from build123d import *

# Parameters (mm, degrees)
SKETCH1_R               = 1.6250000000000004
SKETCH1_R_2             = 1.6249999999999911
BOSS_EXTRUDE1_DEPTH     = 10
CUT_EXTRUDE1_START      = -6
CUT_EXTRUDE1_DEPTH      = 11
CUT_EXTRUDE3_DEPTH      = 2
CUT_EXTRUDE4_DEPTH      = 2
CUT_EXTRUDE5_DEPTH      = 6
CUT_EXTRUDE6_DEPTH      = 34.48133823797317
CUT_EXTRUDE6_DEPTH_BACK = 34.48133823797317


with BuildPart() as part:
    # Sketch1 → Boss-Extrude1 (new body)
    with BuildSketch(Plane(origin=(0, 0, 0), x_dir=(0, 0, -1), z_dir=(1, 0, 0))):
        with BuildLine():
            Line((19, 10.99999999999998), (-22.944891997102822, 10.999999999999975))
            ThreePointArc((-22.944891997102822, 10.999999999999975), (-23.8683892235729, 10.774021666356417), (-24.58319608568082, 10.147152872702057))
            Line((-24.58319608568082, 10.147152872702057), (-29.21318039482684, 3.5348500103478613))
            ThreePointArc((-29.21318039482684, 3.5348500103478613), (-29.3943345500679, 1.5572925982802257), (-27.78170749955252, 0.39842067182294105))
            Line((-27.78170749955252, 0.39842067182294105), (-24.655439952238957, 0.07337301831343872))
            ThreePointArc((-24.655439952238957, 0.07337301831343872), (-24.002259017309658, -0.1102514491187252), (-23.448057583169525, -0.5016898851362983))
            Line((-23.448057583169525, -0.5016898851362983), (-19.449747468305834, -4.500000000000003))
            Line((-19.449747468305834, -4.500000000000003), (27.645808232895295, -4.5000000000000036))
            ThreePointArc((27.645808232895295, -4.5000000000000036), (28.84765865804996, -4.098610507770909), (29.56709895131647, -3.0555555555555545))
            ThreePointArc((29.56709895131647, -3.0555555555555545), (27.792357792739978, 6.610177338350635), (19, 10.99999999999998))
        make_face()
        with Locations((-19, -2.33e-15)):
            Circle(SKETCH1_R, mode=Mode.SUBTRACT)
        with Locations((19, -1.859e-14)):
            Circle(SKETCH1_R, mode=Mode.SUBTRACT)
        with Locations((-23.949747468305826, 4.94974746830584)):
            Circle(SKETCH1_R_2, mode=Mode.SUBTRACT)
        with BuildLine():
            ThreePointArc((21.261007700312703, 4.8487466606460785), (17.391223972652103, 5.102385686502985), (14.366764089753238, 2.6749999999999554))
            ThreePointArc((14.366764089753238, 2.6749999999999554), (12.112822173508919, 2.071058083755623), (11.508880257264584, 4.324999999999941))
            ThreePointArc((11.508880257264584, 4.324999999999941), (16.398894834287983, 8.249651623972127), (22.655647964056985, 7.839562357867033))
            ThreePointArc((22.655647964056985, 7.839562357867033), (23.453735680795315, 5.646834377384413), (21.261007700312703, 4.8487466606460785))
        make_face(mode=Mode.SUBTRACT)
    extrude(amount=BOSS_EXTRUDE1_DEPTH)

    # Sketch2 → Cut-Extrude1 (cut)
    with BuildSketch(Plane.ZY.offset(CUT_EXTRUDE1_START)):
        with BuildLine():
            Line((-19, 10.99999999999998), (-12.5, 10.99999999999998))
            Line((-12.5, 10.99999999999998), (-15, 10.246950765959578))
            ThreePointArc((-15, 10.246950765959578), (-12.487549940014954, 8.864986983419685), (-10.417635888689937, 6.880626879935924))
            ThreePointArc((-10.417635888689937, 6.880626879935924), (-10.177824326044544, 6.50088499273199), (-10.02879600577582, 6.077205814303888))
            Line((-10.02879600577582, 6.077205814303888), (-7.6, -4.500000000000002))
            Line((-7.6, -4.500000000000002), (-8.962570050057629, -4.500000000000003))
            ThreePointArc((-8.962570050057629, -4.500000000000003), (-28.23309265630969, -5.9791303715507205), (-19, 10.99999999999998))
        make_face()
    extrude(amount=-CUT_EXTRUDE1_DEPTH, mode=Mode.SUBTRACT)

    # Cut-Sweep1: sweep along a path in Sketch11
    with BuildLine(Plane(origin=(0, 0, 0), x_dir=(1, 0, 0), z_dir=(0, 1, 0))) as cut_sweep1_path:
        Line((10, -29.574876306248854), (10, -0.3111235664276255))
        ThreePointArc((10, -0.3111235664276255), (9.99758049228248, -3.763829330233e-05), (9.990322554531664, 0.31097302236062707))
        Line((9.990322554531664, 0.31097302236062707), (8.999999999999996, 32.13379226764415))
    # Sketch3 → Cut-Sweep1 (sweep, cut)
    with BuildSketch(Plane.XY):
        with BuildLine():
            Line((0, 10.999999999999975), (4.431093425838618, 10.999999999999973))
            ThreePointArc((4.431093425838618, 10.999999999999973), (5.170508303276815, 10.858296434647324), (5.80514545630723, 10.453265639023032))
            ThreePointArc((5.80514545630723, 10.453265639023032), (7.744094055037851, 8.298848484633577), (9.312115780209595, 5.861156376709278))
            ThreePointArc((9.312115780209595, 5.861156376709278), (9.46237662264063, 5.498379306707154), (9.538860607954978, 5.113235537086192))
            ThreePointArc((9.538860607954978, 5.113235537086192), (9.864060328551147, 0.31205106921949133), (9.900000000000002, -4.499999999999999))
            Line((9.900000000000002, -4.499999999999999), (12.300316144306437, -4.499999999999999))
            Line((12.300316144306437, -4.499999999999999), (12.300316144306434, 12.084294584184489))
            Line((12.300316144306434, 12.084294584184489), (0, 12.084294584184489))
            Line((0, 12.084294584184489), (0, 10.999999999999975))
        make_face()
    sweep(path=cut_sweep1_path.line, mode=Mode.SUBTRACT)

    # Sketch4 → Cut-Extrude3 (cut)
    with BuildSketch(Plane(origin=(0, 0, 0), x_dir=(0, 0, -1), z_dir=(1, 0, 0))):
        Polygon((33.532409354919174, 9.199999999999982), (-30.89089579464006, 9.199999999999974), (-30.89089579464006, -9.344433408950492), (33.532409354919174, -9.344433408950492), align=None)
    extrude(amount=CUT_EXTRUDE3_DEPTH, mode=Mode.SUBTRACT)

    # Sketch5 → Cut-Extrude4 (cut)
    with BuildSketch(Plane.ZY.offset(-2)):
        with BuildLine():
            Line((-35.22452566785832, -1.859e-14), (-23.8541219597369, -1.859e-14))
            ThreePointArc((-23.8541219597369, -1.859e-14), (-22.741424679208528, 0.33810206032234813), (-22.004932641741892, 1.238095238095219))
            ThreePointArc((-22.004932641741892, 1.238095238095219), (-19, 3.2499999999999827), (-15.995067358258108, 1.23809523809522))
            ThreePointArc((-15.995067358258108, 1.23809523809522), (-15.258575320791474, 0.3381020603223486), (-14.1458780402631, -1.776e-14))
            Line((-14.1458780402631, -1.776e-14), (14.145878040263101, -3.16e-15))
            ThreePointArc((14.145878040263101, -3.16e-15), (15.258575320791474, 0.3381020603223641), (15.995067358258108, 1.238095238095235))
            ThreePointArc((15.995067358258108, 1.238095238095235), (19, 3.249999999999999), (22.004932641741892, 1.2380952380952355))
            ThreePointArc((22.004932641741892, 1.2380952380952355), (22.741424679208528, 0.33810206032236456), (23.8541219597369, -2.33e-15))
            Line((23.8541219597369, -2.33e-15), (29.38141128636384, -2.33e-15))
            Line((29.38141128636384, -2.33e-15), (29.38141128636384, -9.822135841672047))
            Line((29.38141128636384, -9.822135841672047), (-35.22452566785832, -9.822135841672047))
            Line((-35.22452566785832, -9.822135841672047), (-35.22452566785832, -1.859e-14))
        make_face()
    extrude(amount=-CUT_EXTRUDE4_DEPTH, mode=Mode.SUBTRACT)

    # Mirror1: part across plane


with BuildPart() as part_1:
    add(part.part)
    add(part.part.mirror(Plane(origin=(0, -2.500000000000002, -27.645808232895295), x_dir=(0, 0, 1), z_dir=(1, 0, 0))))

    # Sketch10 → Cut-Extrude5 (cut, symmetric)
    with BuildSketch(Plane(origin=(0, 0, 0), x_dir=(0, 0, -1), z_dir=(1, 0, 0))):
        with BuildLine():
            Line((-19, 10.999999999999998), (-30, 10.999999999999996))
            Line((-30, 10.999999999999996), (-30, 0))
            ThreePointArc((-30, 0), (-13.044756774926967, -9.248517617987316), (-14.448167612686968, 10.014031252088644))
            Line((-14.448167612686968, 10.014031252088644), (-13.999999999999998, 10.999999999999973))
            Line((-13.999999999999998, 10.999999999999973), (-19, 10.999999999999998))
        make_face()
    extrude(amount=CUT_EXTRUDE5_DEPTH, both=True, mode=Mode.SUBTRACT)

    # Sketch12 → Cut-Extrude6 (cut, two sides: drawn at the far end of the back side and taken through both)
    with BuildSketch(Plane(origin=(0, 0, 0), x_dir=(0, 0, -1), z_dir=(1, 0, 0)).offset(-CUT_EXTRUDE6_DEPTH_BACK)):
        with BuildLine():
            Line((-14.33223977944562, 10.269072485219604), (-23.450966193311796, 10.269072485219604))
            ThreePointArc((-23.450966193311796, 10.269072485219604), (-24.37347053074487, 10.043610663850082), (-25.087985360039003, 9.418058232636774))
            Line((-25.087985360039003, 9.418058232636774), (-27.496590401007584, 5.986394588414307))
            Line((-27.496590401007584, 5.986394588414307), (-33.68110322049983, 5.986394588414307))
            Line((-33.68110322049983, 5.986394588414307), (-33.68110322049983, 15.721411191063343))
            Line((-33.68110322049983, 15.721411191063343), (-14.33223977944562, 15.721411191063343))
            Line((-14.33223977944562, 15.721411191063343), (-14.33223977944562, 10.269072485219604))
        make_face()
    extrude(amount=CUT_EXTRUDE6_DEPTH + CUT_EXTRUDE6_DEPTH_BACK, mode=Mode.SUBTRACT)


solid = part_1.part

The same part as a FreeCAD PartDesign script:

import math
import FreeCAD as App
import Part
import Sketcher
from FreeCAD import Vector
Q = App.Units.Quantity

doc = App.newDocument("Part")
body = doc.addObject("PartDesign::Body", "Body")

# Sketch on YZ plane
sketch1 = body.newObject("Sketcher::SketchObject", "Sketch")
sketch1.AttachmentSupport = (doc.getObject("YZ_Plane"), [""])
sketch1.MapMode = "FlatFace"
sketch1.addGeometry([
    Part.LineSegment(Vector(11, -19, 0), Vector(11, 22.9, 0)),  # 0
    Part.ArcOfCircle(Part.Circle(Vector(9, 22.9, 0), Vector(0, 0, 1), 2), math.radians(0), math.radians(55)),  # 1
    Part.LineSegment(Vector(10.1, 24.6, 0), Vector(3.5, 29.2, 0)),  # 2
    Part.ArcOfCircle(Part.Circle(Vector(2.4, 27.6, 0), Vector(0, 0, 1), 2), math.radians(55), math.radians(174)),  # 3
    Part.LineSegment(Vector(0.4, 27.8, 0), Vector(0.1, 24.7, 0)),  # 4
    Part.ArcOfCircle(Part.Circle(Vector(-1.9, 24.9, 0), Vector(0, 0, 1), 2), math.radians(-45), math.radians(-6)),  # 5
    Part.LineSegment(Vector(-0.5, 23.4, 0), Vector(-4.5, 19.4, 0)),  # 6
    Part.LineSegment(Vector(-4.5, 19.4, 0), Vector(-4.5, -27.6, 0)),  # 7
    Part.ArcOfCircle(Part.Circle(Vector(-2.5, -27.6, 0), Vector(0, 0, 1), 2), math.radians(180), math.radians(254)),  # 8
    Part.ArcOfCircle(Part.Circle(Vector(0, -19, 0), Vector(0, 0, 1), 11), math.radians(-106), math.radians(0)),  # 9
    Part.Circle(Vector(0, 19, 0), Vector(0, 0, 1), 1.6),  # 10
    Part.Circle(Vector(0, -19, 0), Vector(0, 0, 1), 1.6),  # 11
    Part.Circle(Vector(4.9, 23.9, 0), Vector(0, 0, 1), 1.6),  # 12
    Part.ArcOfCircle(Part.Circle(Vector(6.3, -22, 0), Vector(0, 0, 1), 1.6), math.radians(155), math.radians(335)),  # 13
    Part.ArcOfCircle(Part.Circle(Vector(0, -19, 0), Vector(0, 0, 1), 5.3), math.radians(-25), math.radians(60)),  # 14
    Part.ArcOfCircle(Part.Circle(Vector(3.5, -12.9, 0), Vector(0, 0, 1), 1.6), math.radians(60), math.radians(240)),  # 15
    Part.ArcOfCircle(Part.Circle(Vector(0, -19, 0), Vector(0, 0, 1), 8.7), math.radians(-25), math.radians(60)),  # 16
], False)
sketch1.addConstraint([
    Sketcher.Constraint("Tangent", 0, 2, 1, 1),
    Sketcher.Constraint("Tangent", 1, 2, 2, 1),
    Sketcher.Constraint("Tangent", 2, 2, 3, 1),
    Sketcher.Constraint("Tangent", 3, 2, 4, 1),
    Sketcher.Constraint("Tangent", 4, 2, 5, 2),
    Sketcher.Constraint("Tangent", 5, 1, 6, 1),
    Sketcher.Constraint("Coincident", 6, 2, 7, 1),
    Sketcher.Constraint("Tangent", 7, 2, 8, 1),
    Sketcher.Constraint("Tangent", 8, 2, 9, 1),
    Sketcher.Constraint("Tangent", 9, 2, 0, 1),
    Sketcher.Constraint("Tangent", 13, 1, 14, 1),
    Sketcher.Constraint("Tangent", 14, 2, 15, 2),
    Sketcher.Constraint("Tangent", 15, 1, 16, 2),
    Sketcher.Constraint("Tangent", 16, 1, 13, 2),
    Sketcher.Constraint("Vertical", 0),
    Sketcher.Constraint("Vertical", 7),
    Sketcher.Constraint("Coincident", 11, 3, 9, 3),
    Sketcher.Constraint("Coincident", 14, 3, 9, 3),
    Sketcher.Constraint("Coincident", 16, 3, 9, 3),
    Sketcher.Constraint("Equal", 1, 3),
    Sketcher.Constraint("Equal", 3, 5),
    Sketcher.Constraint("Equal", 5, 8),
    Sketcher.Constraint("Equal", 10, 11),
    Sketcher.Constraint("Equal", 11, 12),
    Sketcher.Constraint("Symmetric", 9, 3, 10, 3, -1, 1),
    Sketcher.Constraint("PointOnObject", 9, 3, -2),
    Sketcher.Constraint("Radius", 1, 2.0),
    Sketcher.Constraint("Radius", 9, 11.0),
    Sketcher.Constraint("Diameter", 10, 3.25),
    Sketcher.Constraint("Angle", 2, Q("145 deg")),
    Sketcher.Constraint("Angle", 6, Q("-135 deg")),
    Sketcher.Constraint("Radius", 13, 1.65),
    Sketcher.Constraint("Radius", 14, 5.35),
    Sketcher.Constraint("DistanceY", 9, 3, -1, 1, 19.0),
    Sketcher.Constraint("DistanceX", 8, 3, 15, 3, 6.0),
    Sketcher.Constraint("DistanceX", 8, 3, -1, 1, 2.5),
    Sketcher.Constraint("DistanceY", 0, 1, 0, 2, 41.944892),
    Sketcher.Constraint("DistanceX", 5, 3, 3, 3, 4.303601),
    Sketcher.Constraint("Distance", 2, 8.072131),
    Sketcher.Constraint("Distance", 4, 3.14312),
    Sketcher.Constraint("DistanceX", 3, 3, 12, 3, 2.56205),
    Sketcher.Constraint("DistanceY", 12, 3, 3, 3, 3.625129),
    Sketcher.Constraint("DistanceY", 8, 3, 13, 3, 5.68748),
])
pad1 = body.newObject("PartDesign::Pad", "Pad")
pad1.Profile = sketch1
pad1.Length = 10

# Sketch on YZ plane
sketch2 = body.newObject("Sketcher::SketchObject", "Sketch001")
sketch2.AttachmentSupport = (doc.getObject("YZ_Plane"), [""])
sketch2.MapMode = "FlatFace"
sketch2.AttachmentOffset = App.Placement(Vector(0, 0, 6), App.Rotation())
sketch2.addGeometry([
    Part.LineSegment(Vector(11, -12.5, 0), Vector(11, -19, 0)),  # 0
    Part.ArcOfCircle(Part.Circle(Vector(0, -19, 0), Vector(0, 0, 1), 11), math.radians(114), math.radians(360)),  # 1
    Part.LineSegment(Vector(-4.5, -9, 0), Vector(-4.5, -7.6, 0)),  # 2
    Part.LineSegment(Vector(-4.5, -7.6, 0), Vector(6.1, -10, 0)),  # 3
    Part.ArcOfCircle(Part.Circle(Vector(5.6, -12, 0), Vector(0, 0, 1), 2), math.radians(51), math.radians(77)),  # 4
    Part.ArcOfCircle(Part.Circle(Vector(0, -19, 0), Vector(0, 0, 1), 11), math.radians(21), math.radians(51)),  # 5
    Part.LineSegment(Vector(10.2, -15, 0), Vector(11, -12.5, 0)),  # 6
], False)
sketch2.addConstraint([
    Sketcher.Constraint("Tangent", 0, 2, 1, 2),
    Sketcher.Constraint("Coincident", 1, 1, 2, 1),
    Sketcher.Constraint("Coincident", 2, 2, 3, 1),
    Sketcher.Constraint("Tangent", 3, 2, 4, 2),
    Sketcher.Constraint("Tangent", 4, 1, 5, 2),
    Sketcher.Constraint("Coincident", 5, 1, 6, 1),
    Sketcher.Constraint("Coincident", 6, 2, 0, 1),
    Sketcher.Constraint("Vertical", 0),
    Sketcher.Constraint("Vertical", 2),
    Sketcher.Constraint("Coincident", 5, 3, 1, 3),
    Sketcher.Constraint("Equal", 1, 5),
    Sketcher.Constraint("PointOnObject", 1, 3, -2),
    Sketcher.Constraint("Radius", 1, 11.0),
    Sketcher.Constraint("Radius", 4, 2.0),
    Sketcher.Constraint("DistanceY", 0, 2, 0, 1, 6.5),
    Sketcher.Constraint("DistanceY", 1, 3, -1, 1, 19.0),
    Sketcher.Constraint("DistanceY", 5, 1, -1, 1, 15.0),
    Sketcher.Constraint("DistanceX", 1, 1, -1, 1, 4.5),
    Sketcher.Constraint("DistanceY", 2, 2, -1, 1, 7.6),
    Sketcher.Constraint("Distance", 3, 10.85248),
])
pocket1 = body.newObject("PartDesign::Pocket", "Pocket")
pocket1.Profile = sketch2
pocket1.Length = 11
pocket1.Reversed = True

# Sketch on XY plane
sketch3 = body.newObject("Sketcher::SketchObject", "Sketch002")
sketch3.AttachmentSupport = (doc.getObject("XY_Plane"), [""])
sketch3.MapMode = "FlatFace"
sketch3.addGeometry([
    Part.LineSegment(Vector(0, 11, 0), Vector(4.4, 11, 0)),  # 0
    Part.ArcOfCircle(Part.Circle(Vector(4.4, 9, 0), Vector(0, 0, 1), 2), math.radians(47), math.radians(90)),  # 1
    Part.ArcOfCircle(Part.Circle(Vector(-6.6, -2.6, 0), Vector(0, 0, 1), 18), math.radians(28.13), math.radians(46.6)),  # 2
    Part.ArcOfCircle(Part.Circle(Vector(7.5, 4.9, 0), Vector(0, 0, 1), 2), math.radians(6), math.radians(28)),  # 3
    Part.ArcOfCircle(Part.Circle(Vector(-70.1, -2.7, 0), Vector(0, 0, 1), 80), math.radians(-1.3), math.radians(5.6)),  # 4
    Part.LineSegment(Vector(9.9, -4.5, 0), Vector(12.3, -4.5, 0)),  # 5
    Part.LineSegment(Vector(12.3, -4.5, 0), Vector(12.3, 12.1, 0)),  # 6
    Part.LineSegment(Vector(12.3, 12.1, 0), Vector(0, 12.1, 0)),  # 7
    Part.LineSegment(Vector(0, 12.1, 0), Vector(0, 11, 0)),  # 8
], False)
sketch3.addConstraint([
    Sketcher.Constraint("Tangent", 0, 2, 1, 2),
    Sketcher.Constraint("Tangent", 1, 1, 2, 2),
    Sketcher.Constraint("Tangent", 2, 1, 3, 2),
    Sketcher.Constraint("Tangent", 3, 1, 4, 2),
    Sketcher.Constraint("Coincident", 4, 1, 5, 1),
    Sketcher.Constraint("Coincident", 5, 2, 6, 1),
    Sketcher.Constraint("Coincident", 6, 2, 7, 1),
    Sketcher.Constraint("Coincident", 7, 2, 8, 1),
    Sketcher.Constraint("Coincident", 8, 2, 0, 1),
    Sketcher.Constraint("Horizontal", 0),
    Sketcher.Constraint("Horizontal", 5),
    Sketcher.Constraint("Vertical", 6),
    Sketcher.Constraint("Horizontal", 7),
    Sketcher.Constraint("Vertical", 8),
    Sketcher.Constraint("Equal", 1, 3),
    Sketcher.Constraint("PointOnObject", 7, 2, -2),
    Sketcher.Constraint("Radius", 1, 2.0),
    Sketcher.Constraint("Radius", 2, 18.0),
    Sketcher.Constraint("Radius", 4, 80.0),
    Sketcher.Constraint("DistanceY", -1, 1, 1, 3, 9.0),
    Sketcher.Constraint("DistanceX", -1, 1, 4, 1, 9.9),
    Sketcher.Constraint("DistanceY", 4, 1, -1, 1, 4.5),
    Sketcher.Constraint("DistanceX", -1, 1, 3, 3, 7.5484),
    Sketcher.Constraint("DistanceX", 2, 1, 5, 2, 2.9882),
    Sketcher.Constraint("DistanceX", 0, 1, 0, 2, 4.431093),
    Sketcher.Constraint("DistanceX", 5, 1, 5, 2, 2.400316),
    Sketcher.Constraint("DistanceY", 6, 1, 6, 2, 16.584295),
])

# Sketch on XZ plane
sketch4 = body.newObject("Sketcher::SketchObject", "Sketch003")
sketch4.AttachmentSupport = (doc.getObject("XZ_Plane"), [""])
sketch4.MapMode = "FlatFace"
sketch4.addGeometry([
    Part.LineSegment(Vector(10, 29.6, 0), Vector(10, 0.3, 0)),
    Part.ArcOfCircle(Part.Circle(Vector(-10, 0.3, 0), Vector(0, 0, 1), 20), math.radians(-1.78), math.radians(0)),
    Part.LineSegment(Vector(10, -0.3, 0), Vector(9, -32.1, 0)),
], False)
sketch4.addConstraint([
    Sketcher.Constraint("Tangent", 0, 2, 1, 2),
    Sketcher.Constraint("Tangent", 1, 1, 2, 1),
    Sketcher.Constraint("Vertical", 0),
    Sketcher.Constraint("Radius", 1, 20.0),
    Sketcher.Constraint("DistanceX", 1, 3, -1, 1, 10.0),
    Sketcher.Constraint("DistanceX", -1, 1, 2, 2, 9.0),
    Sketcher.Constraint("DistanceY", 0, 2, 0, 1, 29.263753),
    Sketcher.Constraint("DistanceY", 2, 2, 1, 1, 31.822819),
    Sketcher.Constraint("DistanceY", -1, 1, 1, 3, 0.311124),
])
doc.recompute()

subtractivepipe = body.newObject("PartDesign::SubtractivePipe", "SubtractivePipe")
subtractivepipe.Profile = sketch3
subtractivepipe.Spine = (sketch4, ["Edge1", "Edge2", "Edge3"])

# Sketch on YZ plane
sketch5 = body.newObject("Sketcher::SketchObject", "Sketch004")
sketch5.AttachmentSupport = (doc.getObject("YZ_Plane"), [""])
sketch5.MapMode = "FlatFace"
sketch5.addGeometry([
    Part.LineSegment(Vector(9, -34, 0), Vector(9, 31, 0)),
    Part.LineSegment(Vector(9, 31, 0), Vector(-9, 31, 0)),
    Part.LineSegment(Vector(-9, 31, 0), Vector(-9, -34, 0)),
    Part.LineSegment(Vector(-9, -34, 0), Vector(9, -34, 0)),
], False)
sketch5.addConstraint([
    Sketcher.Constraint("Coincident", 0, 2, 1, 1),
    Sketcher.Constraint("Coincident", 1, 2, 2, 1),
    Sketcher.Constraint("Coincident", 2, 2, 3, 1),
    Sketcher.Constraint("Coincident", 3, 2, 0, 1),
    Sketcher.Constraint("Vertical", 0),
    Sketcher.Constraint("Horizontal", 1),
    Sketcher.Constraint("Vertical", 2),
    Sketcher.Constraint("Horizontal", 3),
    Sketcher.Constraint("DistanceX", -1, 1, 0, 2, 9.2),
    Sketcher.Constraint("DistanceX", 1, 2, 1, 1, 18.544433),
    Sketcher.Constraint("DistanceY", 0, 1, 0, 2, 64.423305),
    Sketcher.Constraint("DistanceY", 2, 2, -1, 1, 33.532409),
])
pocket2 = body.newObject("PartDesign::Pocket", "Pocket001")
pocket2.Profile = sketch5
pocket2.Length = 2
pocket2.Reversed = True

# Sketch on YZ plane
sketch6 = body.newObject("Sketcher::SketchObject", "Sketch005")
sketch6.AttachmentSupport = (doc.getObject("YZ_Plane"), [""])
sketch6.MapMode = "FlatFace"
sketch6.AttachmentOffset = App.Placement(Vector(0, 0, 2), App.Rotation())
sketch6.addGeometry([
    Part.LineSegment(Vector(0, -23.9, 0), Vector(0, -35.2, 0)),  # 0
    Part.LineSegment(Vector(0, -35.2, 0), Vector(-9.8, -35.2, 0)),  # 1
    Part.LineSegment(Vector(-9.8, -35.2, 0), Vector(-9.8, 29.4, 0)),  # 2
    Part.LineSegment(Vector(-9.8, 29.4, 0), Vector(0, 29.4, 0)),  # 3
    Part.LineSegment(Vector(0, 29.4, 0), Vector(0, 23.9, 0)),  # 4
    Part.ArcOfCircle(Part.Circle(Vector(2, 23.9, 0), Vector(0, 0, 1), 2), math.radians(180), math.radians(248)),  # 5
    Part.ArcOfCircle(Part.Circle(Vector(0, 19, 0), Vector(0, 0, 1), 3.2), math.radians(-68), math.radians(68)),  # 6
    Part.ArcOfCircle(Part.Circle(Vector(2, 14.1, 0), Vector(0, 0, 1), 2), math.radians(112), math.radians(180)),  # 7
    Part.LineSegment(Vector(0, 14.1, 0), Vector(0, -14.1, 0)),  # 8
    Part.ArcOfCircle(Part.Circle(Vector(2, -14.1, 0), Vector(0, 0, 1), 2), math.radians(180), math.radians(248)),  # 9
    Part.ArcOfCircle(Part.Circle(Vector(0, -19, 0), Vector(0, 0, 1), 3.2), math.radians(-68), math.radians(68)),  # 10
    Part.ArcOfCircle(Part.Circle(Vector(2, -23.9, 0), Vector(0, 0, 1), 2), math.radians(112), math.radians(180)),  # 11
], False)
sketch6.addConstraint([
    Sketcher.Constraint("Coincident", 0, 2, 1, 1),
    Sketcher.Constraint("Coincident", 1, 2, 2, 1),
    Sketcher.Constraint("Coincident", 2, 2, 3, 1),
    Sketcher.Constraint("Coincident", 3, 2, 4, 1),
    Sketcher.Constraint("Tangent", 4, 2, 5, 1),
    Sketcher.Constraint("Tangent", 5, 2, 6, 2),
    Sketcher.Constraint("Tangent", 6, 1, 7, 1),
    Sketcher.Constraint("Tangent", 7, 2, 8, 1),
    Sketcher.Constraint("Tangent", 8, 2, 9, 1),
    Sketcher.Constraint("Tangent", 9, 2, 10, 2),
    Sketcher.Constraint("Tangent", 10, 1, 11, 1),
    Sketcher.Constraint("Tangent", 11, 2, 0, 1),
    Sketcher.Constraint("Vertical", 0),
    Sketcher.Constraint("Horizontal", 1),
    Sketcher.Constraint("Vertical", 2),
    Sketcher.Constraint("Horizontal", 3),
    Sketcher.Constraint("Vertical", 4),
    Sketcher.Constraint("Vertical", 8),
    Sketcher.Constraint("Equal", 5, 7),
    Sketcher.Constraint("Equal", 7, 9),
    Sketcher.Constraint("Equal", 6, 10),
    Sketcher.Constraint("Equal", 9, 11),
    Sketcher.Constraint("Symmetric", 6, 3, 10, 3, -1, 1),
    Sketcher.Constraint("Symmetric", 7, 2, 8, 2, -1, 1),
    Sketcher.Constraint("Symmetric", 4, 2, 11, 2, -1, 1),
    Sketcher.Constraint("Radius", 5, 2.0),
    Sketcher.Constraint("Radius", 6, 3.25),
    Sketcher.Constraint("DistanceY", -1, 1, 6, 3, 19.0),
    Sketcher.Constraint("DistanceY", 4, 2, 4, 1, 5.527289),
    Sketcher.Constraint("DistanceX", 1, 2, 1, 1, 9.822136),
    Sketcher.Constraint("DistanceY", 0, 2, 0, 1, 11.370404),
])
pocket3 = body.newObject("PartDesign::Pocket", "Pocket002")
pocket3.Profile = sketch6
pocket3.Length = 2
pocket3.Reversed = True
body2 = doc.addObject("PartDesign::Body", "Body001")
doc.recompute()

body2.BaseFeature = body
doc.recompute()

mirroring = doc.addObject("Part::Mirroring", "Mirroring")
mirroring.Source = body
mirroring.Base = Vector(0, -2.5, -27.645808)
mirroring.Normal = Vector(1, 0, 0)
body3 = doc.addObject("PartDesign::Body", "Body002")
body3.BaseFeature = mirroring
boolean = body2.newObject("PartDesign::Boolean", "Boolean")
boolean.Type = "Fuse"
boolean.addObjects([body3])
doc.recompute()

# Sketch on YZ plane
sketch7 = body2.newObject("Sketcher::SketchObject", "Sketch006")
sketch7.AttachmentSupport = (doc.getObject("YZ_Plane001"), [""])
sketch7.MapMode = "FlatFace"
sketch7.addGeometry([
    Part.LineSegment(Vector(11, 30, 0), Vector(0, 30, 0)),
    Part.ArcOfCircle(Part.Circle(Vector(0, 19, 0), Vector(0, 0, 1), 11), math.radians(90), math.radians(336)),
    Part.LineSegment(Vector(10, 14.4, 0), Vector(11, 14, 0)),
    Part.LineSegment(Vector(11, 14, 0), Vector(11, 30, 0)),
], False)
sketch7.addConstraint([
    Sketcher.Constraint("Tangent", 0, 2, 1, 1),
    Sketcher.Constraint("Coincident", 1, 2, 2, 1),
    Sketcher.Constraint("Coincident", 2, 2, 3, 1),
    Sketcher.Constraint("Coincident", 3, 2, 0, 1),
    Sketcher.Constraint("Horizontal", 0),
    Sketcher.Constraint("Vertical", 3),
    Sketcher.Constraint("PointOnObject", 1, 3, -2),
    Sketcher.Constraint("Radius", 1, 11.0),
    Sketcher.Constraint("DistanceX", 0, 2, 0, 1, 11.0),
    Sketcher.Constraint("DistanceY", 3, 1, 3, 2, 16.0),
    Sketcher.Constraint("DistanceY", -1, 1, 1, 3, 19.0),
    Sketcher.Constraint("DistanceX", -1, 1, 1, 2, 10.014031),
])
pocket4 = body2.newObject("PartDesign::Pocket", "Pocket003")
pocket4.Profile = sketch7
pocket4.Length = 12
pocket4.Midplane = True

# Sketch on YZ plane
sketch8 = body2.newObject("Sketcher::SketchObject", "Sketch007")
sketch8.AttachmentSupport = (doc.getObject("YZ_Plane001"), [""])
sketch8.MapMode = "FlatFace"
sketch8.addGeometry([
    Part.LineSegment(Vector(10.3, 23.5, 0), Vector(10.3, 14.3, 0)),  # 0
    Part.LineSegment(Vector(10.3, 14.3, 0), Vector(15.7, 14.3, 0)),  # 1
    Part.LineSegment(Vector(15.7, 14.3, 0), Vector(15.7, 33.7, 0)),  # 2
    Part.LineSegment(Vector(15.7, 33.7, 0), Vector(6, 33.7, 0)),  # 3
    Part.LineSegment(Vector(6, 33.7, 0), Vector(6, 27.5, 0)),  # 4
    Part.LineSegment(Vector(6, 27.5, 0), Vector(9.4, 25.1, 0)),  # 5
    Part.ArcOfCircle(Part.Circle(Vector(8.3, 23.5, 0), Vector(0, 0, 1), 2), math.radians(0), math.radians(55)),  # 6
], False)
sketch8.addConstraint([
    Sketcher.Constraint("Coincident", 0, 2, 1, 1),
    Sketcher.Constraint("Coincident", 1, 2, 2, 1),
    Sketcher.Constraint("Coincident", 2, 2, 3, 1),
    Sketcher.Constraint("Coincident", 3, 2, 4, 1),
    Sketcher.Constraint("Coincident", 4, 2, 5, 1),
    Sketcher.Constraint("Tangent", 5, 2, 6, 2),
    Sketcher.Constraint("Tangent", 6, 1, 0, 1),
    Sketcher.Constraint("Vertical", 0),
    Sketcher.Constraint("Horizontal", 1),
    Sketcher.Constraint("Vertical", 2),
    Sketcher.Constraint("Horizontal", 3),
    Sketcher.Constraint("Vertical", 4),
    Sketcher.Constraint("Radius", 6, 2.0),
    Sketcher.Constraint("DistanceX", 1, 1, 1, 2, 5.452339),
    Sketcher.Constraint("DistanceX", 3, 2, 3, 1, 9.735017),
    Sketcher.Constraint("DistanceY", 0, 2, 0, 1, 9.118726),
    Sketcher.Constraint("DistanceY", 2, 1, 2, 2, 19.348863),
    Sketcher.Constraint("DistanceY", 4, 2, 4, 1, 6.184513),
    Sketcher.Constraint("DistanceY", -1, 1, 0, 2, 14.33224),
    Sketcher.Constraint("DistanceX", -1, 1, 1, 2, 15.721411),
])
pocket5 = body2.newObject("PartDesign::Pocket", "Pocket004")
pocket5.Profile = sketch8
pocket5.Type = "ThroughAll"
pocket5.Midplane = True
mirroring.Visibility = False

doc.recompute()
